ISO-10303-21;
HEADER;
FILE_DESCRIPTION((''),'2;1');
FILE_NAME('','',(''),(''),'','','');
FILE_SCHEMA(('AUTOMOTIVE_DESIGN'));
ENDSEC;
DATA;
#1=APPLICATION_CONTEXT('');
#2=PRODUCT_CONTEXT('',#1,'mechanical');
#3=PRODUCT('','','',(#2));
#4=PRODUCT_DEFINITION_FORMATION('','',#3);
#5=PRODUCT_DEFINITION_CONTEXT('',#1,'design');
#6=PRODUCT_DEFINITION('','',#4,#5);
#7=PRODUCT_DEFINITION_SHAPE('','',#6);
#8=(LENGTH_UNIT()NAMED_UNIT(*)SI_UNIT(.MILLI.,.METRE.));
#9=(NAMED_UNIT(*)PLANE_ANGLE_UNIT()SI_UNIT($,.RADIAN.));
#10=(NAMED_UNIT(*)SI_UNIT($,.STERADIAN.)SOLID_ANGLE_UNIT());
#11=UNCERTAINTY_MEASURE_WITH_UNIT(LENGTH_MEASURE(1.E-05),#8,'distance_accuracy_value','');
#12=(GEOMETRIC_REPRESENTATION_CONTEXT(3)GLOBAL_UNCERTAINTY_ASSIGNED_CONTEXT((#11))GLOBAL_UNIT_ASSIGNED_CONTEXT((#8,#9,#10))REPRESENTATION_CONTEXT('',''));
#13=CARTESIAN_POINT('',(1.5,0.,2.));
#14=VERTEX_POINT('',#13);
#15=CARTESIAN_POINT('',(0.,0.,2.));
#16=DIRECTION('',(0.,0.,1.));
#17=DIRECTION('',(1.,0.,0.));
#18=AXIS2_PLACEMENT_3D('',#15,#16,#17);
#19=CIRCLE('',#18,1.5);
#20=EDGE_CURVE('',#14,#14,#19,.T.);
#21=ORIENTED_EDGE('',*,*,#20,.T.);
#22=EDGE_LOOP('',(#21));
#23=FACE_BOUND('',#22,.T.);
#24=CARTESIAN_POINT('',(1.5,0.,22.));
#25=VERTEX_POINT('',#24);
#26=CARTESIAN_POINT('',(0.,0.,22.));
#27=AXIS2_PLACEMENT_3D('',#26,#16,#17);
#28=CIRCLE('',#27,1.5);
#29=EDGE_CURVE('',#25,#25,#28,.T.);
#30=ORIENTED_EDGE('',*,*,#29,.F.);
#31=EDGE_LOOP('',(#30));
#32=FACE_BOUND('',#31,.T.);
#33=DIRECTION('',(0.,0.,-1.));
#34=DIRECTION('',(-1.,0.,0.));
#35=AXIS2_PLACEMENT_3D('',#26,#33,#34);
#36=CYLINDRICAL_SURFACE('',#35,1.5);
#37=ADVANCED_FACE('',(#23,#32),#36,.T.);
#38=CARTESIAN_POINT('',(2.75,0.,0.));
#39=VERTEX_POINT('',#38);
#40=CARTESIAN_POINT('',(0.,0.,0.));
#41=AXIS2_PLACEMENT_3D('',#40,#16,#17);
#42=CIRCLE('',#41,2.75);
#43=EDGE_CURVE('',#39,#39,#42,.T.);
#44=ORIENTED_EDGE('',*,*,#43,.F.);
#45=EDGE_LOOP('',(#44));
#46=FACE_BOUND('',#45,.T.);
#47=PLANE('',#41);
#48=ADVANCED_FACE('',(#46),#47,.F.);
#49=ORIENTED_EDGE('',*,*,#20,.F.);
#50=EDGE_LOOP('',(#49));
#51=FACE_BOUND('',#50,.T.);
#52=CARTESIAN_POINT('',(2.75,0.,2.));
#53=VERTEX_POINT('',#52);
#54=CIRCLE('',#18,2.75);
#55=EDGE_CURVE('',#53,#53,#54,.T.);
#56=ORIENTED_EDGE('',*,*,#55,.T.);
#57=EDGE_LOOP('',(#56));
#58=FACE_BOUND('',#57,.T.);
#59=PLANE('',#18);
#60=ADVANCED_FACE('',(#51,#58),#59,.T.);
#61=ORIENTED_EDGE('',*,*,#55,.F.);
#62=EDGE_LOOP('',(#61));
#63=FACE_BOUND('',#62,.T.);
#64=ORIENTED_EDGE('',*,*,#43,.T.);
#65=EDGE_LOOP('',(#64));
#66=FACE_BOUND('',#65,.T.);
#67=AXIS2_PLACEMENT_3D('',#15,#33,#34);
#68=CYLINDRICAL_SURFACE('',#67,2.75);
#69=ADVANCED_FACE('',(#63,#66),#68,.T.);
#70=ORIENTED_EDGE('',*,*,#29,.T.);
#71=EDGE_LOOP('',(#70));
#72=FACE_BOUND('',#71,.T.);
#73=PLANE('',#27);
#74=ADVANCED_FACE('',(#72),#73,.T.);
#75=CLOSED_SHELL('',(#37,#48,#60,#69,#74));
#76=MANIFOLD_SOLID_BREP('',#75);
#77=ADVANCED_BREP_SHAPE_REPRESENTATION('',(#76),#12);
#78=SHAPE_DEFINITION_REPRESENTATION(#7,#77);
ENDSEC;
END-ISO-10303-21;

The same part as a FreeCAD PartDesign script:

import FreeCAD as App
import Part
import Sketcher
from FreeCAD import Vector

doc = App.newDocument("Part")
body = doc.addObject("PartDesign::Body", "Body")

sketch1 = body.newObject("Sketcher::SketchObject", "Sketch")
sketch1.AttachmentSupport = (doc.getObject("XY_Plane"), [""])
sketch1.MapMode = "FlatFace"
sketch1.addGeometry(Part.Circle(Vector(0, 0, 0), Vector(0, 0, 1), 2.8), False)
sketch1.addConstraint(Sketcher.Constraint("Coincident", 0, 3, -1, 1))
sketch1.addConstraint(Sketcher.Constraint("Diameter", 0, 5.5))
pad1 = body.newObject("PartDesign::Pad", "Pad")
pad1.Profile = sketch1
pad1.Length = 2

sketch2 = body.newObject("Sketcher::SketchObject", "Sketch001")
sketch2.AttachmentSupport = (doc.getObject("XY_Plane"), [""])
sketch2.MapMode = "FlatFace"
sketch2.AttachmentOffset = App.Placement(Vector(0, 0, 2), App.Rotation())
sketch2.addGeometry(Part.Circle(Vector(0, 0, 0), Vector(0, 0, 1), 1.5), False)
sketch2.addConstraint(Sketcher.Constraint("Coincident", 0, 3, -1, 1))
sketch2.addConstraint(Sketcher.Constraint("Diameter", 0, 3.0))
pad2 = body.newObject("PartDesign::Pad", "Pad001")
pad2.Profile = sketch2
pad2.Length = 20

doc.recompute()
